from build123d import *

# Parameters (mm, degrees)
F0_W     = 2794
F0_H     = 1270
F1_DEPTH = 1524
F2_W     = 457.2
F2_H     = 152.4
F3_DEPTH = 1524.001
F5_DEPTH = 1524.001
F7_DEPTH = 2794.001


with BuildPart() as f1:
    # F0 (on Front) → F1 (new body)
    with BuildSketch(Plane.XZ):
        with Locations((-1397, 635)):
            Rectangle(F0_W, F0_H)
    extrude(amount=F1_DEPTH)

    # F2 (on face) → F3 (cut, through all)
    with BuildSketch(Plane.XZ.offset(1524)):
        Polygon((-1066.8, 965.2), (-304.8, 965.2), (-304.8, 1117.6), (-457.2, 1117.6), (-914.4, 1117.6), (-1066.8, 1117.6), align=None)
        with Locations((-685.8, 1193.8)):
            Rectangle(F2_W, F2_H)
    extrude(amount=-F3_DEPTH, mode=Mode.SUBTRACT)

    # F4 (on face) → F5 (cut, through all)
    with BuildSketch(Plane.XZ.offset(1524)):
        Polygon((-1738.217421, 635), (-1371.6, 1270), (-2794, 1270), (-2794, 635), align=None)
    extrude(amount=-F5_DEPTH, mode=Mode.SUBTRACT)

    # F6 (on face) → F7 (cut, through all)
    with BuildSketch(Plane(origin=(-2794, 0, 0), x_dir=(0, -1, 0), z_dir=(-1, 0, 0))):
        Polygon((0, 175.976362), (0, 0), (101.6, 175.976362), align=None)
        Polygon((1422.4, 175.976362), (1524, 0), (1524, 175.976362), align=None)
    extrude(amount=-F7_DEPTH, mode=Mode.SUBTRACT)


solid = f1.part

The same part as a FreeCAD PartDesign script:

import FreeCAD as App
import Part
import Sketcher
Q = App.Units.Quantity


def add_polygon(sketch, points):
    """Adds a closed chain of lines whose ends are joined by coincident constraints."""
    first, n = sketch.GeometryCount, len(points)
    for a, b in zip(points, points[1:] + points[:1]):
        sketch.addGeometry(Part.LineSegment(App.Vector(*a, 0), App.Vector(*b, 0)), False)
    for i in range(n):
        sketch.addConstraint(Sketcher.Constraint("Coincident", first + i, 2, first + (i + 1) % n, 1))

doc = App.newDocument("Part")
params = doc.addObject("Spreadsheet::Sheet", "Params")
for row, (alias, value) in enumerate([
    ("sketch1_width", "110 in"),
    ("sketch1_height", "50 in"),
    ("pad1_length", "60 in"),
    ("sketch2_width", "30 in"),
    ("sketch2_width2", "6 in"),
    ("sketch3_width", "56 in"),
    ("sketch3_height", "25 in"),
    ("sketch4_width", "4 in"),
    ("sketch4_length", "8 in"),
], start=1):
    params.set(f"A{row}", alias)
    params.set(f"B{row}", "=" + value)
    params.setAlias(f"B{row}", alias)

body = doc.addObject("PartDesign::Body", "Body")

# Sketch on XZ plane
sketch1 = doc.addObject("Sketcher::SketchObject", "Sketch")
body.addObject(sketch1)
sketch1.AttachmentSupport = (doc.XZ_Plane, [""])
sketch1.MapMode = "FlatFace"
add_polygon(sketch1, [(-2794, 1270), (-2794, 0), (0, 0), (0, 1270)])  # lines 0-3
sketch1.addConstraint(Sketcher.Constraint("Vertical", 0))
sketch1.addConstraint(Sketcher.Constraint("Horizontal", 1))
sketch1.addConstraint(Sketcher.Constraint("Vertical", 2))
sketch1.addConstraint(Sketcher.Constraint("Horizontal", 3))
sketch1.addConstraint(Sketcher.Constraint("Coincident", 1, 2, -1, 1))
sketch1.addConstraint(Sketcher.Constraint("DistanceX", 1, 1, 1, 2, Q("110 in")))
sketch1.addConstraint(Sketcher.Constraint("DistanceY", 0, 2, 0, 1, Q("50 in")))
sketch1.setExpression("Constraints[9]", "Params.sketch1_width")
sketch1.setExpression("Constraints[10]", "Params.sketch1_height")
pad1 = doc.addObject("PartDesign::Pad", "Pad")
body.addObject(pad1)
pad1.Profile = sketch1
pad1.setExpression("Length", "Params.pad1_length")

# Sketch on XZ plane
sketch2 = doc.addObject("Sketcher::SketchObject", "Sketch001")
body.addObject(sketch2)
sketch2.AttachmentSupport = (doc.XZ_Plane, [""])
sketch2.MapMode = "FlatFace"
sketch2.AttachmentOffset = App.Placement(App.Vector(0, 0, 60 * 25.4), App.Rotation())
add_polygon(sketch2, [(-1067, 965), (-305, 965), (-305, 1118), (-457, 1118), (-457, 1270), (-914, 1270), (-914, 1118), (-1067, 1118)])  # lines 0-7
sketch2.addConstraint(Sketcher.Constraint("Horizontal", 0))
sketch2.addConstraint(Sketcher.Constraint("Vertical", 1))
sketch2.addConstraint(Sketcher.Constraint("Horizontal", 2))
sketch2.addConstraint(Sketcher.Constraint("Vertical", 3))
sketch2.addConstraint(Sketcher.Constraint("Horizontal", 4))
sketch2.addConstraint(Sketcher.Constraint("Vertical", 5))
sketch2.addConstraint(Sketcher.Constraint("Horizontal", 6))
sketch2.addConstraint(Sketcher.Constraint("Vertical", 7))
sketch2.addConstraint(Sketcher.Constraint("Horizontal", 2, 2, 5, 2))
sketch2.addConstraint(Sketcher.Constraint("Equal", 2, 6))
sketch2.addConstraint(Sketcher.Constraint("Equal", 6, 1))
sketch2.addConstraint(Sketcher.Constraint("Equal", 1, 3))
sketch2.addConstraint(Sketcher.Constraint("DistanceX", 0, 1, 0, 2, Q("30 in")))
sketch2.addConstraint(Sketcher.Constraint("DistanceX", 2, 2, 2, 1, Q("6 in")))
sketch2.addConstraint(Sketcher.Constraint("DistanceX", 0, 2, -1, 1, Q("12 in")))
sketch2.addConstraint(Sketcher.Constraint("DistanceY", -1, 1, 0, 2, Q("38 in")))
sketch2.setExpression("Constraints[20]", "Params.sketch2_width")
sketch2.setExpression("Constraints[21]", "Params.sketch2_width2")
pocket1 = doc.addObject("PartDesign::Pocket", "Pocket")
body.addObject(pocket1)
pocket1.Profile = sketch2
pocket1.Type = "ThroughAll"

# Sketch on XZ plane
sketch3 = doc.addObject("Sketcher::SketchObject", "Sketch002")
body.addObject(sketch3)
sketch3.AttachmentSupport = (doc.XZ_Plane, [""])
sketch3.MapMode = "FlatFace"
sketch3.AttachmentOffset = App.Placement(App.Vector(0, 0, 60 * 25.4), App.Rotation())
add_polygon(sketch3, [(-1738, 635), (-1372, 1270), (-2794, 1270), (-2794, 635)])  # lines 0-3
sketch3.addConstraint(Sketcher.Constraint("Horizontal", 1))
sketch3.addConstraint(Sketcher.Constraint("Vertical", 2))
sketch3.addConstraint(Sketcher.Constraint("Horizontal", 3))
sketch3.addConstraint(Sketcher.Constraint("DistanceX", 1, 2, 1, 1, Q("56 in")))
sketch3.addConstraint(Sketcher.Constraint("DistanceY", 2, 2, 2, 1, Q("25 in")))
sketch3.addConstraint(Sketcher.Constraint("DistanceX", 0, 2, -1, 1, Q("54 in")))
sketch3.addConstraint(Sketcher.Constraint("DistanceY", -1, 1, 0, 2, Q("50 in")))
sketch3.addConstraint(Sketcher.Constraint("Angle", 0, Q("60 deg")))
sketch3.setExpression("Constraints[7]", "Params.sketch3_width")
sketch3.setExpression("Constraints[8]", "Params.sketch3_height")
pocket2 = doc.addObject("PartDesign::Pocket", "Pocket001")
body.addObject(pocket2)
pocket2.Profile = sketch3
pocket2.Type = "ThroughAll"

# Sketch on YZ plane
sketch4 = doc.addObject("Sketcher::SketchObject", "Sketch003")
body.addObject(sketch4)
sketch4.AttachmentSupport = (doc.YZ_Plane, [""])
sketch4.MapMode = "FlatFace"
sketch4.AttachmentOffset = App.Placement(App.Vector(0, 0, -110 * 25.4), App.Rotation())
add_polygon(sketch4, [(0, 176), (0, 0), (-102, 176)])  # lines 0-2
add_polygon(sketch4, [(-1422, 176), (-1524, 0), (-1524, 176)])  # lines 3-5
sketch4.addConstraint(Sketcher.Constraint("Vertical", 0))
sketch4.addConstraint(Sketcher.Constraint("Horizontal", 2))
sketch4.addConstraint(Sketcher.Constraint("Vertical", 4))
sketch4.addConstraint(Sketcher.Constraint("Horizontal", 5))
sketch4.addConstraint(Sketcher.Constraint("Coincident", 0, 2, -1, 1))
sketch4.addConstraint(Sketcher.Constraint("PointOnObject", 3, 2, -1))
sketch4.addConstraint(Sketcher.Constraint("Horizontal", 2, 2, 4, 2))
sketch4.addConstraint(Sketcher.Constraint("Equal", 2, 5))
sketch4.addConstraint(Sketcher.Constraint("DistanceX", 2, 1, 2, 2, Q("4 in")))
sketch4.addConstraint(Sketcher.Constraint("Distance", 1, Q("8 in")))
sketch4.addConstraint(Sketcher.Constraint("DistanceX", 3, 2, -1, 1, Q("60 in")))
sketch4.setExpression("Constraints[14]", "Params.sketch4_width")
sketch4.setExpression("Constraints[15]", "Params.sketch4_length")
pocket3 = doc.addObject("PartDesign::Pocket", "Pocket002")
body.addObject(pocket3)
pocket3.Profile = sketch4
pocket3.Type = "ThroughAll"
pocket3.Reversed = True

doc.recompute()
